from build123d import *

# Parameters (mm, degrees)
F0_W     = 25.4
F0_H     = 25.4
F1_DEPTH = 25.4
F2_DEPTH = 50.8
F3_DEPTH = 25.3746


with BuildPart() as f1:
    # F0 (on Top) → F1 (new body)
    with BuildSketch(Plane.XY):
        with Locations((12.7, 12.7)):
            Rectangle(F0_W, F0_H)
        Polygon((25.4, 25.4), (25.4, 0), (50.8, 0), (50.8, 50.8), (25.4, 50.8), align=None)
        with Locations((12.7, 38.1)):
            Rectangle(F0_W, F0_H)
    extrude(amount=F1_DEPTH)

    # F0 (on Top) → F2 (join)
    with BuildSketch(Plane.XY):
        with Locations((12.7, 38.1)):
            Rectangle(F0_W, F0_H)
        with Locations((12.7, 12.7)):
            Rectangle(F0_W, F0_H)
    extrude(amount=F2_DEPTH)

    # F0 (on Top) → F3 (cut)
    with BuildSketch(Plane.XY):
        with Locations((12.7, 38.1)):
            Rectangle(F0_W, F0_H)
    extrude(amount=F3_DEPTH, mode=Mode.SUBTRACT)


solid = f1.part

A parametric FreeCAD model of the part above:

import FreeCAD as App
import Part
import Sketcher
from FreeCAD import Vector
Q = App.Units.Quantity

doc = App.newDocument("Part")
params = doc.addObject("Spreadsheet::Sheet", "Params")
for row, (alias, value) in enumerate([
    ("sketch1_width", "2 in"),
    ("pad1_length", "1 in"),
    ("sketch2_width", "1 in"),
    ("sketch2_height", "2 in"),
    ("pad2_length", "2 in"),
    ("sketch3_width", "1 in"),
    ("pocket1_length", "0.999 in"),
], start=1):
    params.set(f"A{row}", alias)
    params.set(f"B{row}", "=" + value)
    params.setAlias(f"B{row}", alias)

body = doc.addObject("PartDesign::Body", "Body")

sketch1 = body.newObject("Sketcher::SketchObject", "Sketch")
sketch1.AttachmentSupport = (doc.getObject("XY_Plane"), [""])
sketch1.MapMode = "FlatFace"
sketch1.addGeometry(Part.LineSegment(Vector(0, 0, 0), Vector(51, 0, 0)), False)
sketch1.addGeometry(Part.LineSegment(Vector(51, 0, 0), Vector(51, 51, 0)), False)
sketch1.addGeometry(Part.LineSegment(Vector(51, 51, 0), Vector(0, 51, 0)), False)
sketch1.addGeometry(Part.LineSegment(Vector(0, 51, 0), Vector(0, 0, 0)), False)
sketch1.addConstraint(Sketcher.Constraint("Coincident", 0, 2, 1, 1))
sketch1.addConstraint(Sketcher.Constraint("Coincident", 1, 2, 2, 1))
sketch1.addConstraint(Sketcher.Constraint("Coincident", 2, 2, 3, 1))
sketch1.addConstraint(Sketcher.Constraint("Coincident", 3, 2, 0, 1))
sketch1.addConstraint(Sketcher.Constraint("Horizontal", 0))
sketch1.addConstraint(Sketcher.Constraint("Vertical", 1))
sketch1.addConstraint(Sketcher.Constraint("Horizontal", 2))
sketch1.addConstraint(Sketcher.Constraint("Vertical", 3))
sketch1.addConstraint(Sketcher.Constraint("Coincident", 3, 2, -1, 1))
sketch1.addConstraint(Sketcher.Constraint("Equal", 2, 1))
sketch1.addConstraint(Sketcher.Constraint("DistanceX", 0, 1, 0, 2, Q("2 in")))
sketch1.setExpression("Constraints[10]", "Params.sketch1_width")
pad1 = body.newObject("PartDesign::Pad", "Pad")
pad1.Profile = sketch1
pad1.setExpression("Length", "Params.pad1_length")

sketch2 = body.newObject("Sketcher::SketchObject", "Sketch001")
sketch2.AttachmentSupport = (doc.getObject("XY_Plane"), [""])
sketch2.MapMode = "FlatFace"
sketch2.addGeometry(Part.LineSegment(Vector(0, 51, 0), Vector(0, 0, 0)), False)
sketch2.addGeometry(Part.LineSegment(Vector(0, 0, 0), Vector(25, 0, 0)), False)
sketch2.addGeometry(Part.LineSegment(Vector(25, 0, 0), Vector(25, 51, 0)), False)
sketch2.addGeometry(Part.LineSegment(Vector(25, 51, 0), Vector(0, 51, 0)), False)
sketch2.addConstraint(Sketcher.Constraint("Coincident", 0, 2, 1, 1))
sketch2.addConstraint(Sketcher.Constraint("Coincident", 1, 2, 2, 1))
sketch2.addConstraint(Sketcher.Constraint("Coincident", 2, 2, 3, 1))
sketch2.addConstraint(Sketcher.Constraint("Coincident", 3, 2, 0, 1))
sketch2.addConstraint(Sketcher.Constraint("Vertical", 0))
sketch2.addConstraint(Sketcher.Constraint("Horizontal", 1))
sketch2.addConstraint(Sketcher.Constraint("Vertical", 2))
sketch2.addConstraint(Sketcher.Constraint("Horizontal", 3))
sketch2.addConstraint(Sketcher.Constraint("Coincident", 0, 2, -1, 1))
sketch2.addConstraint(Sketcher.Constraint("DistanceX", 1, 1, 1, 2, Q("1 in")))
sketch2.addConstraint(Sketcher.Constraint("DistanceY", 0, 2, 0, 1, Q("2 in")))
sketch2.setExpression("Constraints[9]", "Params.sketch2_width")
sketch2.setExpression("Constraints[10]", "Params.sketch2_height")
pad2 = body.newObject("PartDesign::Pad", "Pad001")
pad2.Profile = sketch2
pad2.setExpression("Length", "Params.pad2_length")

sketch3 = body.newObject("Sketcher::SketchObject", "Sketch002")
sketch3.AttachmentSupport = (doc.getObject("XY_Plane"), [""])
sketch3.MapMode = "FlatFace"
sketch3.addGeometry(Part.LineSegment(Vector(0, 51, 0), Vector(0, 25, 0)), False)
sketch3.addGeometry(Part.LineSegment(Vector(0, 25, 0), Vector(25, 25, 0)), False)
sketch3.addGeometry(Part.LineSegment(Vector(25, 25, 0), Vector(25, 51, 0)), False)
sketch3.addGeometry(Part.LineSegment(Vector(25, 51, 0), Vector(0, 51, 0)), False)
sketch3.addConstraint(Sketcher.Constraint("Coincident", 0, 2, 1, 1))
sketch3.addConstraint(Sketcher.Constraint("Coincident", 1, 2, 2, 1))
sketch3.addConstraint(Sketcher.Constraint("Coincident", 2, 2, 3, 1))
sketch3.addConstraint(Sketcher.Constraint("Coincident", 3, 2, 0, 1))
sketch3.addConstraint(Sketcher.Constraint("Vertical", 0))
sketch3.addConstraint(Sketcher.Constraint("Horizontal", 1))
sketch3.addConstraint(Sketcher.Constraint("Vertical", 2))
sketch3.addConstraint(Sketcher.Constraint("Horizontal", 3))
sketch3.addConstraint(Sketcher.Constraint("PointOnObject", 0, 2, -2))
sketch3.addConstraint(Sketcher.Constraint("Equal", 3, 0))
sketch3.addConstraint(Sketcher.Constraint("DistanceX", 1, 1, 1, 2, Q("1 in")))
sketch3.addConstraint(Sketcher.Constraint("DistanceY", -1, 1, 0, 2, Q("1 in")))
sketch3.setExpression("Constraints[10]", "Params.sketch3_width")
pocket1 = body.newObject("PartDesign::Pocket", "Pocket")
pocket1.Profile = sketch3
pocket1.setExpression("Length", "Params.pocket1_length")
pocket1.Reversed = True

doc.recompute()
